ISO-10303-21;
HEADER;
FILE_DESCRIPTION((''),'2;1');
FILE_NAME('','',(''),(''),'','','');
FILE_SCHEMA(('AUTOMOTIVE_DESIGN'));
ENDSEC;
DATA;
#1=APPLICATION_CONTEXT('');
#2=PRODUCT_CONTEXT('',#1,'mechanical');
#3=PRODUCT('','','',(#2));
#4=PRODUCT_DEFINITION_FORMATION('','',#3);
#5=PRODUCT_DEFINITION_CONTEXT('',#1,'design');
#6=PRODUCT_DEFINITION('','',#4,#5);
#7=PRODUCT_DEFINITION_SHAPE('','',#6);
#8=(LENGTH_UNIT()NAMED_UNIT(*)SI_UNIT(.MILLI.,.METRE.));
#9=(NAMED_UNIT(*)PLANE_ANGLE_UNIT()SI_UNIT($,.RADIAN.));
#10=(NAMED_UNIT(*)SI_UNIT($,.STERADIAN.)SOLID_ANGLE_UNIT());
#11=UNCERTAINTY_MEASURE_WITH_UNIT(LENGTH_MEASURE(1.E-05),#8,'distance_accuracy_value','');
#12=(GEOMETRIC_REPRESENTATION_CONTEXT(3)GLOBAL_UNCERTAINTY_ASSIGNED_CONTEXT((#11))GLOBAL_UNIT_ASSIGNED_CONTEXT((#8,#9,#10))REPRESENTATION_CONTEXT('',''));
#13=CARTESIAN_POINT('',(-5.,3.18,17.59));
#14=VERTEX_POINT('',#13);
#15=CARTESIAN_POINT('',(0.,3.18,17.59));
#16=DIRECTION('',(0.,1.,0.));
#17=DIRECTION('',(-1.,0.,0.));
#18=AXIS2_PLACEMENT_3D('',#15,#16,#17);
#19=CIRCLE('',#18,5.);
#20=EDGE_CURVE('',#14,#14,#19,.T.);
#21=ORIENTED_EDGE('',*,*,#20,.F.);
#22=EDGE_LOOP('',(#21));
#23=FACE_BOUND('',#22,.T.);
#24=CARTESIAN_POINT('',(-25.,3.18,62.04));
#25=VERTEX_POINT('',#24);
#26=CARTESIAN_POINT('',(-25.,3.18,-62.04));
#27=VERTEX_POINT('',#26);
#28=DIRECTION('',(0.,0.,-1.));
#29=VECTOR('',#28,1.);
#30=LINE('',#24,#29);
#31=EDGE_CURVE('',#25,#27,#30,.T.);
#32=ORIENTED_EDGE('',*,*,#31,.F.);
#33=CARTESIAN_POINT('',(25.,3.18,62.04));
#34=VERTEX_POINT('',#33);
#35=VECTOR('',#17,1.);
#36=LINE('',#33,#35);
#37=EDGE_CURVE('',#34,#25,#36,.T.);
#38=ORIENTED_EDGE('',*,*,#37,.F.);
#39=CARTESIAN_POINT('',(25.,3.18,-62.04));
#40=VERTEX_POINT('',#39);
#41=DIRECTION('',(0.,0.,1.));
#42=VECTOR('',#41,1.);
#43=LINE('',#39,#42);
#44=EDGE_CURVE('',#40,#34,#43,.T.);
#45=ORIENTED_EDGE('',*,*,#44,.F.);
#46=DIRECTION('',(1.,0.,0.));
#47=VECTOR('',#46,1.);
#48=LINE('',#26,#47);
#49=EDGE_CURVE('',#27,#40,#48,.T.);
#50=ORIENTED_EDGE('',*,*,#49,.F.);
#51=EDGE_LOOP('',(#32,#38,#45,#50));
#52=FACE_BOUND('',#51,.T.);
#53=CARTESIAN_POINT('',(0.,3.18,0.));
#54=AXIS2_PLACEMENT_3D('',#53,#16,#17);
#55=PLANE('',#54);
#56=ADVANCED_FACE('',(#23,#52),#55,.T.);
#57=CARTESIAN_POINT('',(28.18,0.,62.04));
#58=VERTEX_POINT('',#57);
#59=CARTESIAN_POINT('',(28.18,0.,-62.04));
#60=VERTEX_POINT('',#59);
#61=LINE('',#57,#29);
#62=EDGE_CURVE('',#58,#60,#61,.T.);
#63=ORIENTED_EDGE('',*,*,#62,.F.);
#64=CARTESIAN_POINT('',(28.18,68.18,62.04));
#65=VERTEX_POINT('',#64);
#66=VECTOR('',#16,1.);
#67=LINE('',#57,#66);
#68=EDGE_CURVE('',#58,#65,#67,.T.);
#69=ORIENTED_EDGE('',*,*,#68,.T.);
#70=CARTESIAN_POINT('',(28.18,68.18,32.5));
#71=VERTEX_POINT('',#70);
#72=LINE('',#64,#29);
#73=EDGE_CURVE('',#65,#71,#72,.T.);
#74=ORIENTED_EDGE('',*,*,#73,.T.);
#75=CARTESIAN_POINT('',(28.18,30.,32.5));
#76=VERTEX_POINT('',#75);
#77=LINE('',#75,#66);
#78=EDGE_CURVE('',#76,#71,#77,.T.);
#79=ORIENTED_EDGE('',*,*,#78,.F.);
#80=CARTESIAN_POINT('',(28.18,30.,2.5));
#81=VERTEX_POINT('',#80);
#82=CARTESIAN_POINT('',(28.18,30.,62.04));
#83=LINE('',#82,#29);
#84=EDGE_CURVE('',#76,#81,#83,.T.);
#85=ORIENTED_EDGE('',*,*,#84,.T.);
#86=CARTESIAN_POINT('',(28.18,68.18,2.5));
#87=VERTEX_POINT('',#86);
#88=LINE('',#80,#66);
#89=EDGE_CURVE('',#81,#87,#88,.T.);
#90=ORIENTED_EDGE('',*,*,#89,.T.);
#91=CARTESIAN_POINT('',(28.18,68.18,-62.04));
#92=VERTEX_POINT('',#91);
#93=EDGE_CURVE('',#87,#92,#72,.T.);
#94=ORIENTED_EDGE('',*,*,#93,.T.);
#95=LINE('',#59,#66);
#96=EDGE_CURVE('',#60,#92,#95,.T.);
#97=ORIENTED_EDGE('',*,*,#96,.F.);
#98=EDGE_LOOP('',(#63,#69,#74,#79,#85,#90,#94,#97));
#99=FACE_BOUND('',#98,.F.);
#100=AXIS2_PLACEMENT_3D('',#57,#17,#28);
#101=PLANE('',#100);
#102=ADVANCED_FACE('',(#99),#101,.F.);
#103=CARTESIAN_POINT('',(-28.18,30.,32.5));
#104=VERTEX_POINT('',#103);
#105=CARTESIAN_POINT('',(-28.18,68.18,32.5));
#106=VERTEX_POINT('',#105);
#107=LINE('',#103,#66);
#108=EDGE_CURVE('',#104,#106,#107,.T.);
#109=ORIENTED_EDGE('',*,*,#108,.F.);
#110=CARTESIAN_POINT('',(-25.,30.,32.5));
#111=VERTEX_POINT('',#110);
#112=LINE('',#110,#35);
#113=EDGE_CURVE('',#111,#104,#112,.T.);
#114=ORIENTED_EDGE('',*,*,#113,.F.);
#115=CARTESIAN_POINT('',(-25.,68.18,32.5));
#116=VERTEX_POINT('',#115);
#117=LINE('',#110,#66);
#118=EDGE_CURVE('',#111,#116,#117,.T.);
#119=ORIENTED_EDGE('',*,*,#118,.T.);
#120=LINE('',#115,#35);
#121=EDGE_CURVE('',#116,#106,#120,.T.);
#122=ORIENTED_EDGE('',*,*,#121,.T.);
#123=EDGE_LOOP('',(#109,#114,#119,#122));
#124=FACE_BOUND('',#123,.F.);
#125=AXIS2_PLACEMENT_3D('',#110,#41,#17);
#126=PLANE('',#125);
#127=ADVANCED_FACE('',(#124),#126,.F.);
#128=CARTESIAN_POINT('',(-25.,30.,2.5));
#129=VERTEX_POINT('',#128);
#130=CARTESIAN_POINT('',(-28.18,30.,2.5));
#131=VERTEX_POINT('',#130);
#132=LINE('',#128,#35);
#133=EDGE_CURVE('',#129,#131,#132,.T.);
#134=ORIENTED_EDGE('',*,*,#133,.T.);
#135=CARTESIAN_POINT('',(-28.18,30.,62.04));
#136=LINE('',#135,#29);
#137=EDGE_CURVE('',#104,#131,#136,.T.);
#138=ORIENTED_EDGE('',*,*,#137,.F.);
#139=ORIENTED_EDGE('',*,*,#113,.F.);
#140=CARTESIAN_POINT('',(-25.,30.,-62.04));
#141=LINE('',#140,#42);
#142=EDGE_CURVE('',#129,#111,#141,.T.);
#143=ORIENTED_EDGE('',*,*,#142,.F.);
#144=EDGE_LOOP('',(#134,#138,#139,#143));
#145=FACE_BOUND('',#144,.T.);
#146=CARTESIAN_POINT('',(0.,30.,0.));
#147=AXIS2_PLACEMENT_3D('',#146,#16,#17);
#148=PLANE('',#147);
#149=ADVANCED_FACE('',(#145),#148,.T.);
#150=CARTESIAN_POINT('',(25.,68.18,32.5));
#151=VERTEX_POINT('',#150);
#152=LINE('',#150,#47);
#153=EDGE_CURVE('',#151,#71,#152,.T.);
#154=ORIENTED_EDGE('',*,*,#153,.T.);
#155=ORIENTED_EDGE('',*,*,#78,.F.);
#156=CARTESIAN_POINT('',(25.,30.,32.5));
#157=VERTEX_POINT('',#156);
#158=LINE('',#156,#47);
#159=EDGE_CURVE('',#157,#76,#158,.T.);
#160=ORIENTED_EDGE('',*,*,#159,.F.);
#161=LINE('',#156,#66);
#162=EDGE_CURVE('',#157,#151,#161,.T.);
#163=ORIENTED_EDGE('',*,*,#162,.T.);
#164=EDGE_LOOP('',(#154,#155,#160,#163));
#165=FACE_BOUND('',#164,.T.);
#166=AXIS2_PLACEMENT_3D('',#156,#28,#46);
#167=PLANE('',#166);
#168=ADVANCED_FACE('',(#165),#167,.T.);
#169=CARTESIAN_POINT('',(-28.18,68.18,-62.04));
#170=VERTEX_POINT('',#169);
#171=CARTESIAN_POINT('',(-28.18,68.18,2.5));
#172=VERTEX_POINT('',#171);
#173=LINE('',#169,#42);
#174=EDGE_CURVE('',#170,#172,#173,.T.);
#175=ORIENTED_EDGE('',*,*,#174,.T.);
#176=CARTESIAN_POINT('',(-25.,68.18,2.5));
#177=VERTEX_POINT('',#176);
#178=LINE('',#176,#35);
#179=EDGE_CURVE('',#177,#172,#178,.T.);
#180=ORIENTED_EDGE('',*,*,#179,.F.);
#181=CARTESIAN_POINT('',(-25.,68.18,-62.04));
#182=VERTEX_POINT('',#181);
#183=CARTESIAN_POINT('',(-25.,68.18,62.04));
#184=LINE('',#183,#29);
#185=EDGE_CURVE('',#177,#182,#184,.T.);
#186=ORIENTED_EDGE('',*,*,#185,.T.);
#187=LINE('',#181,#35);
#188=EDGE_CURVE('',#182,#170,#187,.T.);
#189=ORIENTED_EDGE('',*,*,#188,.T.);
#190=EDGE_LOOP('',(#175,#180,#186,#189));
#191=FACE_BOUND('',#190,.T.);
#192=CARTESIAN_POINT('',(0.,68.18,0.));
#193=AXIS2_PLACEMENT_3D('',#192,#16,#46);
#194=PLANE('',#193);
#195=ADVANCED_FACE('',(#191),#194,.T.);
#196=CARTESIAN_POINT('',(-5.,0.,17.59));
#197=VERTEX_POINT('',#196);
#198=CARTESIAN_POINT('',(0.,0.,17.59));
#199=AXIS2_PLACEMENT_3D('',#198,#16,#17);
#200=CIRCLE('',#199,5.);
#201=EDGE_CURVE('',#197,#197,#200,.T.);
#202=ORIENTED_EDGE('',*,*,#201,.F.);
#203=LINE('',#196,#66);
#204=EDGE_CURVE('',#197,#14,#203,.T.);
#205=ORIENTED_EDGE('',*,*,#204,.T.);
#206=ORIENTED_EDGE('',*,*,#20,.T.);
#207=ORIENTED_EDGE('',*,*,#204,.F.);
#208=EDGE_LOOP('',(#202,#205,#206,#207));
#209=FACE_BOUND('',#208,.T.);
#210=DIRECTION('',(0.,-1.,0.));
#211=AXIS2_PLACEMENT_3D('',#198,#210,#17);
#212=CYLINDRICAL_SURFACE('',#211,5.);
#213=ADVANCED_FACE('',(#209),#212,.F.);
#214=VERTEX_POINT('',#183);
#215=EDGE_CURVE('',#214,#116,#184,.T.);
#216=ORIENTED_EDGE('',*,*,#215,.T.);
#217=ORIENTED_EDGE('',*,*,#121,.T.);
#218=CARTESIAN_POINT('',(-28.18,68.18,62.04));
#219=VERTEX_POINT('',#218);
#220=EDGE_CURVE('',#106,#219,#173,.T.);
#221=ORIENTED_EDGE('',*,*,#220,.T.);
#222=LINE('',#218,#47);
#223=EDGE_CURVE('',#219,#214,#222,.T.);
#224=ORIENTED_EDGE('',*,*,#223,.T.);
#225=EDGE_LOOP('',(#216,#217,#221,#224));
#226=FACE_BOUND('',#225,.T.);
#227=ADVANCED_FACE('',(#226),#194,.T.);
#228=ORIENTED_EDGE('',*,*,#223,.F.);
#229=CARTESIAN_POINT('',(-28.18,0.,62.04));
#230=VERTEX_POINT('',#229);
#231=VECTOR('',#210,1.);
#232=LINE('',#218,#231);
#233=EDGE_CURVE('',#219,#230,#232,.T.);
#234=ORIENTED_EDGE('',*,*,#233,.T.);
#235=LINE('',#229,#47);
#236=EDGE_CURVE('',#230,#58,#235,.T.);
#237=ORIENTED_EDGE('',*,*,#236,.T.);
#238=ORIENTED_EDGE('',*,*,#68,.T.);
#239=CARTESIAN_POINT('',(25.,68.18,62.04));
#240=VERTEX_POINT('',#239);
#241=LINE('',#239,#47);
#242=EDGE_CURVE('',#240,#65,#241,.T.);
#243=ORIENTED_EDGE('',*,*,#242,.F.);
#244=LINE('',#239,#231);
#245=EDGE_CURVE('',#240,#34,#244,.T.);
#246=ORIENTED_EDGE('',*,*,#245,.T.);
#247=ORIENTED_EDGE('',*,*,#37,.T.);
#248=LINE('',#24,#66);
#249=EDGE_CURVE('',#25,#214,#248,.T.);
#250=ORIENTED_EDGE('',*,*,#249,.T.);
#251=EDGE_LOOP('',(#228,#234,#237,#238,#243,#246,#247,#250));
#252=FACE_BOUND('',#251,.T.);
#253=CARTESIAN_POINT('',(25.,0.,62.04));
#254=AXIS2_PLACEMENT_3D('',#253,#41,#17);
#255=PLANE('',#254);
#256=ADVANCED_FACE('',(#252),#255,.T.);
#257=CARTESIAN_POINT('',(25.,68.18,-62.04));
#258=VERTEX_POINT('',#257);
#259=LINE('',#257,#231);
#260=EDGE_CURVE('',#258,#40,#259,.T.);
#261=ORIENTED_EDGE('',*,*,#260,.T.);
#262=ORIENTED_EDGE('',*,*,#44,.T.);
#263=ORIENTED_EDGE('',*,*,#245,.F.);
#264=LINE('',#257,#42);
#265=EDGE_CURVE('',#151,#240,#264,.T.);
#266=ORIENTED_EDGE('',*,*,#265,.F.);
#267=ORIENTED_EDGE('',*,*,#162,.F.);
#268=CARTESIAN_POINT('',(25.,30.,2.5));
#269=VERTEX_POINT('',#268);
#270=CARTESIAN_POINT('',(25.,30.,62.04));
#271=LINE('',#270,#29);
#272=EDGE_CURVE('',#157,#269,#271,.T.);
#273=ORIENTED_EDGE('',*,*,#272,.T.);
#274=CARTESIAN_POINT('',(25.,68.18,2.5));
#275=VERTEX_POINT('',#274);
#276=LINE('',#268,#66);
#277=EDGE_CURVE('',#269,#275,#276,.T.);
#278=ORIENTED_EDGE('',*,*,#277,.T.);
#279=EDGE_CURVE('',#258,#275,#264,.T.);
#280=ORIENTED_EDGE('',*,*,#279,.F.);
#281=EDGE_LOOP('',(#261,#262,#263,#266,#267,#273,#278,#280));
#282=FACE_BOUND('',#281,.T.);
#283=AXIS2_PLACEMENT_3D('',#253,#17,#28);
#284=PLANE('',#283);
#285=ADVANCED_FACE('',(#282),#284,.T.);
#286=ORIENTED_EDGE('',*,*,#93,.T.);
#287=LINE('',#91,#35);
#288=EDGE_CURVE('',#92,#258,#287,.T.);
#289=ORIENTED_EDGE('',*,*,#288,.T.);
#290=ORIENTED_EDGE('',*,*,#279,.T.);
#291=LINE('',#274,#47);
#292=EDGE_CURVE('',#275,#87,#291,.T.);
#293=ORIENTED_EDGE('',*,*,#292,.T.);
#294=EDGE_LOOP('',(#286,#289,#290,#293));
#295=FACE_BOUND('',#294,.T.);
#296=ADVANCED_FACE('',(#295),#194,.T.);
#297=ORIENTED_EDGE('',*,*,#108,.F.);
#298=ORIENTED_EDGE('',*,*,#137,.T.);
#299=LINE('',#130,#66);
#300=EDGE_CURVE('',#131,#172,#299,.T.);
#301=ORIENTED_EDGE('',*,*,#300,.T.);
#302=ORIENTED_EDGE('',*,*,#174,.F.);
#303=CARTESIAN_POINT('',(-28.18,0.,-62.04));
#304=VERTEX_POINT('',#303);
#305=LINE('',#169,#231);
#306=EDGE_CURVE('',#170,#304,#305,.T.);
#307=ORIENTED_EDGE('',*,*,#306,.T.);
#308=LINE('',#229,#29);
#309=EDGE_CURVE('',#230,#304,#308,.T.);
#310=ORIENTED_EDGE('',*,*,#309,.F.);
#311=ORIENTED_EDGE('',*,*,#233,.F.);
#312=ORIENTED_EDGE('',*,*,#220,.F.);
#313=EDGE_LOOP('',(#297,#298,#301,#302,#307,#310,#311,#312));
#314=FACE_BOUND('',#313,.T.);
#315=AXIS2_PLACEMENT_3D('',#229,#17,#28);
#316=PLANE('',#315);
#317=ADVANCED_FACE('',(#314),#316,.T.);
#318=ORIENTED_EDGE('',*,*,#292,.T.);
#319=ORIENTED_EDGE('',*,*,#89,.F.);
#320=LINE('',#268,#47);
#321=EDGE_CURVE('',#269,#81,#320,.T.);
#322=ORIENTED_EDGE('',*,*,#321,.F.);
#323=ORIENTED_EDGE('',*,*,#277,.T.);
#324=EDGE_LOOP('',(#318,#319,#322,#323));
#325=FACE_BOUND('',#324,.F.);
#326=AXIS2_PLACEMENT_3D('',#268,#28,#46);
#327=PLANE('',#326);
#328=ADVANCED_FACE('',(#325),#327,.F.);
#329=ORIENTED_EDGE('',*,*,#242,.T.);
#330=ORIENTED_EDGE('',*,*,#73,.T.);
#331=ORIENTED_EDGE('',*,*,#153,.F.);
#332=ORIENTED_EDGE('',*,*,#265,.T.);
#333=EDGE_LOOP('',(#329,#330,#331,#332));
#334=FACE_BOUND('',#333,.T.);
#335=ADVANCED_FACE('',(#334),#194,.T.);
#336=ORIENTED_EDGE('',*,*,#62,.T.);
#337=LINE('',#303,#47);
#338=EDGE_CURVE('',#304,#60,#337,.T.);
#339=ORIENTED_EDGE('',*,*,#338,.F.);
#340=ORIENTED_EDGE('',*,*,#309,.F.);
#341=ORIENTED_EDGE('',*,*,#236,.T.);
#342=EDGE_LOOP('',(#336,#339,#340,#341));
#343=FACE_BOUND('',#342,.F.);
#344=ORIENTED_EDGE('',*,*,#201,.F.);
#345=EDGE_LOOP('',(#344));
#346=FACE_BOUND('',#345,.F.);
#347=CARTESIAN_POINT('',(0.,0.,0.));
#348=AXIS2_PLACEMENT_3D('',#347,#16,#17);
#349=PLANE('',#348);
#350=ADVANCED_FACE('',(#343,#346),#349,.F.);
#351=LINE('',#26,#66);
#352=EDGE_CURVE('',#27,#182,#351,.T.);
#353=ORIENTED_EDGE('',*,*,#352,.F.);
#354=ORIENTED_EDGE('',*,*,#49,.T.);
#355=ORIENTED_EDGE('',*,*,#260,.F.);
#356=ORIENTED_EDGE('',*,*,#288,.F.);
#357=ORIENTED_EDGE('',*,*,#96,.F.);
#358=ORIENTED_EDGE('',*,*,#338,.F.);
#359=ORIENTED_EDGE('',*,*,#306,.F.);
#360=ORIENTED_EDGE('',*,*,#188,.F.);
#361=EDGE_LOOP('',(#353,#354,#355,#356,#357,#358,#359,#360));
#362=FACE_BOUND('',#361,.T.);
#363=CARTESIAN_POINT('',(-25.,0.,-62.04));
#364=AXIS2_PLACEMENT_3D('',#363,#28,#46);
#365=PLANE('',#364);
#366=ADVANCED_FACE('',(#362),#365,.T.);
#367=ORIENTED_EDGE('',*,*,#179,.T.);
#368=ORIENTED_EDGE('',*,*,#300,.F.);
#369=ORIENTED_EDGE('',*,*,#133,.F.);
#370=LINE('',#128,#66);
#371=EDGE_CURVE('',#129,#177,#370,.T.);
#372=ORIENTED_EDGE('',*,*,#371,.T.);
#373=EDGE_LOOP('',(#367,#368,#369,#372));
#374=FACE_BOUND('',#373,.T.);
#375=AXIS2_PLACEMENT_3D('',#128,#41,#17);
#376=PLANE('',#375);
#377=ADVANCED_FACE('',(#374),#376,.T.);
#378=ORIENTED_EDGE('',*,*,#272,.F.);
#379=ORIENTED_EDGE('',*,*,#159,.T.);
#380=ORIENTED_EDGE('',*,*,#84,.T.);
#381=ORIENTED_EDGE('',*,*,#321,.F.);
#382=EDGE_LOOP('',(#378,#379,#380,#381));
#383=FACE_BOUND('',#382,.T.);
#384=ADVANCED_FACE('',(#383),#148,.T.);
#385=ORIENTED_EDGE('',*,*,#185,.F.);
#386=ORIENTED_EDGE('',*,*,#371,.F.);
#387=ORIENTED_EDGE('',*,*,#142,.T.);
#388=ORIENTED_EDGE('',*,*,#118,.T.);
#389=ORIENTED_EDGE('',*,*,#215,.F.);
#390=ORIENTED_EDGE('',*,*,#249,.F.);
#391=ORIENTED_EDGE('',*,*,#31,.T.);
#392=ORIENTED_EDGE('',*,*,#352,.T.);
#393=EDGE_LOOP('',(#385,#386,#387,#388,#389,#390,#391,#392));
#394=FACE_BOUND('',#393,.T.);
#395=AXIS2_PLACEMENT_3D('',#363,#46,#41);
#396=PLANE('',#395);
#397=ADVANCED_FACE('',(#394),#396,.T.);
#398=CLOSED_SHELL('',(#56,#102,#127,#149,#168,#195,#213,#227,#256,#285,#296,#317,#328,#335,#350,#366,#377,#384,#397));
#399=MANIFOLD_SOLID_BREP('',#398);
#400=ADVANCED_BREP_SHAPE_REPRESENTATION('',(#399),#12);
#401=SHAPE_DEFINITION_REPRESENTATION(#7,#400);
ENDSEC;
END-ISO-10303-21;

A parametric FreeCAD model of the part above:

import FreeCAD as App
import Part
import Sketcher

V = App.Vector
Q = App.Units.Quantity


def add_polygon(sketch, points):
    """Adds a closed chain of lines whose ends are joined by coincident constraints."""
    first, n = sketch.GeometryCount, len(points)
    for a, b in zip(points, points[1:] + points[:1]):
        sketch.addGeometry(Part.LineSegment(App.Vector(*a, 0), App.Vector(*b, 0)), False)
    for i in range(n):
        sketch.addConstraint(Sketcher.Constraint("Coincident", first + i, 2, first + (i + 1) % n, 1))

doc = App.newDocument("Part")
body = doc.addObject("PartDesign::Body", "Body")

sketch1 = body.newObject("Sketcher::SketchObject", "Sketch")
sketch1.AttachmentSupport = (doc.getObject("XZ_Plane"), [""])
sketch1.MapMode = "FlatFace"
add_polygon(sketch1, [(-25, 62), (25, 62), (25, -62), (-25, -62)])
sketch1.addGeometry(Part.Circle(V(0, 18, 0), V(0, 0, 1), 5), False)
sketch1.addConstraint(Sketcher.Constraint("Horizontal", 0))
sketch1.addConstraint(Sketcher.Constraint("Vertical", 1))
sketch1.addConstraint(Sketcher.Constraint("Horizontal", 2))
sketch1.addConstraint(Sketcher.Constraint("Vertical", 3))
sketch1.addConstraint(Sketcher.Constraint("Symmetric", 0, 2, 2, 2, -1, 1))
sketch1.addConstraint(Sketcher.Constraint("PointOnObject", 4, 3, -2))
sketch1.addConstraint(Sketcher.Constraint("Diameter", 4, Q("0.3937 in")))
sketch1.addConstraint(Sketcher.Constraint("DistanceY", 4, 3, 0, 2, Q("1.75 in")))
sketch1.addConstraint(Sketcher.Constraint("DistanceX", 0, 1, 0, 2, Q("1.9685 in")))
sketch1.addConstraint(Sketcher.Constraint("DistanceY", 1, 2, 1, 1, 124.08))
pad1 = body.newObject("PartDesign::Pad", "Pad")
pad1.Profile = sketch1
pad1.Length = Q("0.1251969 in")
pad1.Reversed = True

sketch2 = body.newObject("Sketcher::SketchObject", "Sketch001")
sketch2.AttachmentSupport = (doc.getObject("XZ_Plane"), [""])
sketch2.MapMode = "FlatFace"
add_polygon(sketch2, [(-28.2, 62), (-25, 62), (-25, -62), (-28.2, -62)])
add_polygon(sketch2, [(25, -62), (25, 62), (28.2, 62), (28.2, -62)])
sketch2.addConstraint(Sketcher.Constraint("Horizontal", 0))
sketch2.addConstraint(Sketcher.Constraint("Vertical", 1))
sketch2.addConstraint(Sketcher.Constraint("Horizontal", 2))
sketch2.addConstraint(Sketcher.Constraint("Vertical", 3))
sketch2.addConstraint(Sketcher.Constraint("Vertical", 4))
sketch2.addConstraint(Sketcher.Constraint("Horizontal", 5))
sketch2.addConstraint(Sketcher.Constraint("Vertical", 6))
sketch2.addConstraint(Sketcher.Constraint("Horizontal", 7))
sketch2.addConstraint(Sketcher.Constraint("Symmetric", 1, 2, 4, 2, -1, 1))
sketch2.addConstraint(Sketcher.Constraint("Symmetric", 3, 2, 6, 2, -1, 1))
sketch2.addConstraint(Sketcher.Constraint("Horizontal", 3, 2, 4, 2))
sketch2.addConstraint(Sketcher.Constraint("DistanceX", 0, 1, 0, 2, Q("0.1252 in")))
sketch2.addConstraint(Sketcher.Constraint("DistanceY", 1, 2, 1, 1, 124.08))
sketch2.addConstraint(Sketcher.Constraint("DistanceX", 0, 2, 4, 2, Q("1.9685 in")))
pad2 = body.newObject("PartDesign::Pad", "Pad001")
pad2.Profile = sketch2
pad2.Length = Q("1.1811024 in")
pad2.Reversed = True

sketch3 = body.newObject("Sketcher::SketchObject", "Sketch002")
sketch3.AttachmentSupport = (doc.getObject("XZ_Plane"), [""])
sketch3.MapMode = "FlatFace"
sketch3.AttachmentOffset = App.Placement(V(0, 0, -1.1811024 * 25.4), App.Rotation())
add_polygon(sketch3, [(-28.2, 62), (-25, 62), (-25, 32.5), (-28.2, 32.5)])
add_polygon(sketch3, [(-28.2, 2.5), (-25, 2.5), (-25, -62), (-28.2, -62)])
sketch3.addConstraint(Sketcher.Constraint("Horizontal", 0))
sketch3.addConstraint(Sketcher.Constraint("Vertical", 1))
sketch3.addConstraint(Sketcher.Constraint("Horizontal", 2))
sketch3.addConstraint(Sketcher.Constraint("Vertical", 3))
sketch3.addConstraint(Sketcher.Constraint("Horizontal", 4))
sketch3.addConstraint(Sketcher.Constraint("Vertical", 5))
sketch3.addConstraint(Sketcher.Constraint("Horizontal", 6))
sketch3.addConstraint(Sketcher.Constraint("Vertical", 7))
sketch3.addConstraint(Sketcher.Constraint("Symmetric", 0, 2, 5, 2, -1))
sketch3.addConstraint(Sketcher.Constraint("Vertical", 3, 2, 6, 2))
sketch3.addConstraint(Sketcher.Constraint("DistanceY", 1, 2, 1, 1, Q("1.163 in")))
sketch3.addConstraint(Sketcher.Constraint("DistanceY", 5, 2, 5, 1, 64.54))
sketch3.addConstraint(Sketcher.Constraint("DistanceX", 0, 1, 0, 2, Q("0.1252 in")))
sketch3.addConstraint(Sketcher.Constraint("DistanceY", 4, 2, 1, 2, Q("1.1811 in")))
sketch3.addConstraint(Sketcher.Constraint("DistanceX", 0, 2, -1, 1, 25.0))
pad3 = body.newObject("PartDesign::Pad", "Pad002")
pad3.Profile = sketch3
pad3.Length = 38.18
pad3.Reversed = True

sketch4 = body.newObject("Sketcher::SketchObject", "Sketch003")
sketch4.AttachmentSupport = (doc.getObject("XZ_Plane"), [""])
sketch4.MapMode = "FlatFace"
sketch4.AttachmentOffset = App.Placement(V(0, 0, -1.1811024 * 25.4), App.Rotation())
add_polygon(sketch4, [(25, 32.5), (25, 62), (28.2, 62), (28.2, 32.5)])
add_polygon(sketch4, [(25, -62), (25, 2.5), (28.2, 2.5), (28.2, -62)])
sketch4.addConstraint(Sketcher.Constraint("Vertical", 0))
sketch4.addConstraint(Sketcher.Constraint("Horizontal", 1))
sketch4.addConstraint(Sketcher.Constraint("Vertical", 2))
sketch4.addConstraint(Sketcher.Constraint("Horizontal", 3))
sketch4.addConstraint(Sketcher.Constraint("Vertical", 4))
sketch4.addConstraint(Sketcher.Constraint("Horizontal", 5))
sketch4.addConstraint(Sketcher.Constraint("Vertical", 6))
sketch4.addConstraint(Sketcher.Constraint("Horizontal", 7))
sketch4.addConstraint(Sketcher.Constraint("Symmetric", 1, 2, 6, 2, -1))
sketch4.addConstraint(Sketcher.Constraint("Vertical", 3, 2, 4, 2))
sketch4.addConstraint(Sketcher.Constraint("DistanceY", 0, 1, 0, 2, Q("1.163 in")))
sketch4.addConstraint(Sketcher.Constraint("DistanceY", 4, 1, 4, 2, 64.54))
sketch4.addConstraint(Sketcher.Constraint("DistanceX", 1, 1, 1, 2, Q("0.1252 in")))
sketch4.addConstraint(Sketcher.Constraint("DistanceY", 4, 2, 3, 2, Q("1.1811 in")))
sketch4.addConstraint(Sketcher.Constraint("DistanceX", -1, 1, 0, 2, 25.0))
pad4 = body.newObject("PartDesign::Pad", "Pad003")
pad4.Profile = sketch4
pad4.Length = 38.18
pad4.Reversed = True

doc.recompute()
